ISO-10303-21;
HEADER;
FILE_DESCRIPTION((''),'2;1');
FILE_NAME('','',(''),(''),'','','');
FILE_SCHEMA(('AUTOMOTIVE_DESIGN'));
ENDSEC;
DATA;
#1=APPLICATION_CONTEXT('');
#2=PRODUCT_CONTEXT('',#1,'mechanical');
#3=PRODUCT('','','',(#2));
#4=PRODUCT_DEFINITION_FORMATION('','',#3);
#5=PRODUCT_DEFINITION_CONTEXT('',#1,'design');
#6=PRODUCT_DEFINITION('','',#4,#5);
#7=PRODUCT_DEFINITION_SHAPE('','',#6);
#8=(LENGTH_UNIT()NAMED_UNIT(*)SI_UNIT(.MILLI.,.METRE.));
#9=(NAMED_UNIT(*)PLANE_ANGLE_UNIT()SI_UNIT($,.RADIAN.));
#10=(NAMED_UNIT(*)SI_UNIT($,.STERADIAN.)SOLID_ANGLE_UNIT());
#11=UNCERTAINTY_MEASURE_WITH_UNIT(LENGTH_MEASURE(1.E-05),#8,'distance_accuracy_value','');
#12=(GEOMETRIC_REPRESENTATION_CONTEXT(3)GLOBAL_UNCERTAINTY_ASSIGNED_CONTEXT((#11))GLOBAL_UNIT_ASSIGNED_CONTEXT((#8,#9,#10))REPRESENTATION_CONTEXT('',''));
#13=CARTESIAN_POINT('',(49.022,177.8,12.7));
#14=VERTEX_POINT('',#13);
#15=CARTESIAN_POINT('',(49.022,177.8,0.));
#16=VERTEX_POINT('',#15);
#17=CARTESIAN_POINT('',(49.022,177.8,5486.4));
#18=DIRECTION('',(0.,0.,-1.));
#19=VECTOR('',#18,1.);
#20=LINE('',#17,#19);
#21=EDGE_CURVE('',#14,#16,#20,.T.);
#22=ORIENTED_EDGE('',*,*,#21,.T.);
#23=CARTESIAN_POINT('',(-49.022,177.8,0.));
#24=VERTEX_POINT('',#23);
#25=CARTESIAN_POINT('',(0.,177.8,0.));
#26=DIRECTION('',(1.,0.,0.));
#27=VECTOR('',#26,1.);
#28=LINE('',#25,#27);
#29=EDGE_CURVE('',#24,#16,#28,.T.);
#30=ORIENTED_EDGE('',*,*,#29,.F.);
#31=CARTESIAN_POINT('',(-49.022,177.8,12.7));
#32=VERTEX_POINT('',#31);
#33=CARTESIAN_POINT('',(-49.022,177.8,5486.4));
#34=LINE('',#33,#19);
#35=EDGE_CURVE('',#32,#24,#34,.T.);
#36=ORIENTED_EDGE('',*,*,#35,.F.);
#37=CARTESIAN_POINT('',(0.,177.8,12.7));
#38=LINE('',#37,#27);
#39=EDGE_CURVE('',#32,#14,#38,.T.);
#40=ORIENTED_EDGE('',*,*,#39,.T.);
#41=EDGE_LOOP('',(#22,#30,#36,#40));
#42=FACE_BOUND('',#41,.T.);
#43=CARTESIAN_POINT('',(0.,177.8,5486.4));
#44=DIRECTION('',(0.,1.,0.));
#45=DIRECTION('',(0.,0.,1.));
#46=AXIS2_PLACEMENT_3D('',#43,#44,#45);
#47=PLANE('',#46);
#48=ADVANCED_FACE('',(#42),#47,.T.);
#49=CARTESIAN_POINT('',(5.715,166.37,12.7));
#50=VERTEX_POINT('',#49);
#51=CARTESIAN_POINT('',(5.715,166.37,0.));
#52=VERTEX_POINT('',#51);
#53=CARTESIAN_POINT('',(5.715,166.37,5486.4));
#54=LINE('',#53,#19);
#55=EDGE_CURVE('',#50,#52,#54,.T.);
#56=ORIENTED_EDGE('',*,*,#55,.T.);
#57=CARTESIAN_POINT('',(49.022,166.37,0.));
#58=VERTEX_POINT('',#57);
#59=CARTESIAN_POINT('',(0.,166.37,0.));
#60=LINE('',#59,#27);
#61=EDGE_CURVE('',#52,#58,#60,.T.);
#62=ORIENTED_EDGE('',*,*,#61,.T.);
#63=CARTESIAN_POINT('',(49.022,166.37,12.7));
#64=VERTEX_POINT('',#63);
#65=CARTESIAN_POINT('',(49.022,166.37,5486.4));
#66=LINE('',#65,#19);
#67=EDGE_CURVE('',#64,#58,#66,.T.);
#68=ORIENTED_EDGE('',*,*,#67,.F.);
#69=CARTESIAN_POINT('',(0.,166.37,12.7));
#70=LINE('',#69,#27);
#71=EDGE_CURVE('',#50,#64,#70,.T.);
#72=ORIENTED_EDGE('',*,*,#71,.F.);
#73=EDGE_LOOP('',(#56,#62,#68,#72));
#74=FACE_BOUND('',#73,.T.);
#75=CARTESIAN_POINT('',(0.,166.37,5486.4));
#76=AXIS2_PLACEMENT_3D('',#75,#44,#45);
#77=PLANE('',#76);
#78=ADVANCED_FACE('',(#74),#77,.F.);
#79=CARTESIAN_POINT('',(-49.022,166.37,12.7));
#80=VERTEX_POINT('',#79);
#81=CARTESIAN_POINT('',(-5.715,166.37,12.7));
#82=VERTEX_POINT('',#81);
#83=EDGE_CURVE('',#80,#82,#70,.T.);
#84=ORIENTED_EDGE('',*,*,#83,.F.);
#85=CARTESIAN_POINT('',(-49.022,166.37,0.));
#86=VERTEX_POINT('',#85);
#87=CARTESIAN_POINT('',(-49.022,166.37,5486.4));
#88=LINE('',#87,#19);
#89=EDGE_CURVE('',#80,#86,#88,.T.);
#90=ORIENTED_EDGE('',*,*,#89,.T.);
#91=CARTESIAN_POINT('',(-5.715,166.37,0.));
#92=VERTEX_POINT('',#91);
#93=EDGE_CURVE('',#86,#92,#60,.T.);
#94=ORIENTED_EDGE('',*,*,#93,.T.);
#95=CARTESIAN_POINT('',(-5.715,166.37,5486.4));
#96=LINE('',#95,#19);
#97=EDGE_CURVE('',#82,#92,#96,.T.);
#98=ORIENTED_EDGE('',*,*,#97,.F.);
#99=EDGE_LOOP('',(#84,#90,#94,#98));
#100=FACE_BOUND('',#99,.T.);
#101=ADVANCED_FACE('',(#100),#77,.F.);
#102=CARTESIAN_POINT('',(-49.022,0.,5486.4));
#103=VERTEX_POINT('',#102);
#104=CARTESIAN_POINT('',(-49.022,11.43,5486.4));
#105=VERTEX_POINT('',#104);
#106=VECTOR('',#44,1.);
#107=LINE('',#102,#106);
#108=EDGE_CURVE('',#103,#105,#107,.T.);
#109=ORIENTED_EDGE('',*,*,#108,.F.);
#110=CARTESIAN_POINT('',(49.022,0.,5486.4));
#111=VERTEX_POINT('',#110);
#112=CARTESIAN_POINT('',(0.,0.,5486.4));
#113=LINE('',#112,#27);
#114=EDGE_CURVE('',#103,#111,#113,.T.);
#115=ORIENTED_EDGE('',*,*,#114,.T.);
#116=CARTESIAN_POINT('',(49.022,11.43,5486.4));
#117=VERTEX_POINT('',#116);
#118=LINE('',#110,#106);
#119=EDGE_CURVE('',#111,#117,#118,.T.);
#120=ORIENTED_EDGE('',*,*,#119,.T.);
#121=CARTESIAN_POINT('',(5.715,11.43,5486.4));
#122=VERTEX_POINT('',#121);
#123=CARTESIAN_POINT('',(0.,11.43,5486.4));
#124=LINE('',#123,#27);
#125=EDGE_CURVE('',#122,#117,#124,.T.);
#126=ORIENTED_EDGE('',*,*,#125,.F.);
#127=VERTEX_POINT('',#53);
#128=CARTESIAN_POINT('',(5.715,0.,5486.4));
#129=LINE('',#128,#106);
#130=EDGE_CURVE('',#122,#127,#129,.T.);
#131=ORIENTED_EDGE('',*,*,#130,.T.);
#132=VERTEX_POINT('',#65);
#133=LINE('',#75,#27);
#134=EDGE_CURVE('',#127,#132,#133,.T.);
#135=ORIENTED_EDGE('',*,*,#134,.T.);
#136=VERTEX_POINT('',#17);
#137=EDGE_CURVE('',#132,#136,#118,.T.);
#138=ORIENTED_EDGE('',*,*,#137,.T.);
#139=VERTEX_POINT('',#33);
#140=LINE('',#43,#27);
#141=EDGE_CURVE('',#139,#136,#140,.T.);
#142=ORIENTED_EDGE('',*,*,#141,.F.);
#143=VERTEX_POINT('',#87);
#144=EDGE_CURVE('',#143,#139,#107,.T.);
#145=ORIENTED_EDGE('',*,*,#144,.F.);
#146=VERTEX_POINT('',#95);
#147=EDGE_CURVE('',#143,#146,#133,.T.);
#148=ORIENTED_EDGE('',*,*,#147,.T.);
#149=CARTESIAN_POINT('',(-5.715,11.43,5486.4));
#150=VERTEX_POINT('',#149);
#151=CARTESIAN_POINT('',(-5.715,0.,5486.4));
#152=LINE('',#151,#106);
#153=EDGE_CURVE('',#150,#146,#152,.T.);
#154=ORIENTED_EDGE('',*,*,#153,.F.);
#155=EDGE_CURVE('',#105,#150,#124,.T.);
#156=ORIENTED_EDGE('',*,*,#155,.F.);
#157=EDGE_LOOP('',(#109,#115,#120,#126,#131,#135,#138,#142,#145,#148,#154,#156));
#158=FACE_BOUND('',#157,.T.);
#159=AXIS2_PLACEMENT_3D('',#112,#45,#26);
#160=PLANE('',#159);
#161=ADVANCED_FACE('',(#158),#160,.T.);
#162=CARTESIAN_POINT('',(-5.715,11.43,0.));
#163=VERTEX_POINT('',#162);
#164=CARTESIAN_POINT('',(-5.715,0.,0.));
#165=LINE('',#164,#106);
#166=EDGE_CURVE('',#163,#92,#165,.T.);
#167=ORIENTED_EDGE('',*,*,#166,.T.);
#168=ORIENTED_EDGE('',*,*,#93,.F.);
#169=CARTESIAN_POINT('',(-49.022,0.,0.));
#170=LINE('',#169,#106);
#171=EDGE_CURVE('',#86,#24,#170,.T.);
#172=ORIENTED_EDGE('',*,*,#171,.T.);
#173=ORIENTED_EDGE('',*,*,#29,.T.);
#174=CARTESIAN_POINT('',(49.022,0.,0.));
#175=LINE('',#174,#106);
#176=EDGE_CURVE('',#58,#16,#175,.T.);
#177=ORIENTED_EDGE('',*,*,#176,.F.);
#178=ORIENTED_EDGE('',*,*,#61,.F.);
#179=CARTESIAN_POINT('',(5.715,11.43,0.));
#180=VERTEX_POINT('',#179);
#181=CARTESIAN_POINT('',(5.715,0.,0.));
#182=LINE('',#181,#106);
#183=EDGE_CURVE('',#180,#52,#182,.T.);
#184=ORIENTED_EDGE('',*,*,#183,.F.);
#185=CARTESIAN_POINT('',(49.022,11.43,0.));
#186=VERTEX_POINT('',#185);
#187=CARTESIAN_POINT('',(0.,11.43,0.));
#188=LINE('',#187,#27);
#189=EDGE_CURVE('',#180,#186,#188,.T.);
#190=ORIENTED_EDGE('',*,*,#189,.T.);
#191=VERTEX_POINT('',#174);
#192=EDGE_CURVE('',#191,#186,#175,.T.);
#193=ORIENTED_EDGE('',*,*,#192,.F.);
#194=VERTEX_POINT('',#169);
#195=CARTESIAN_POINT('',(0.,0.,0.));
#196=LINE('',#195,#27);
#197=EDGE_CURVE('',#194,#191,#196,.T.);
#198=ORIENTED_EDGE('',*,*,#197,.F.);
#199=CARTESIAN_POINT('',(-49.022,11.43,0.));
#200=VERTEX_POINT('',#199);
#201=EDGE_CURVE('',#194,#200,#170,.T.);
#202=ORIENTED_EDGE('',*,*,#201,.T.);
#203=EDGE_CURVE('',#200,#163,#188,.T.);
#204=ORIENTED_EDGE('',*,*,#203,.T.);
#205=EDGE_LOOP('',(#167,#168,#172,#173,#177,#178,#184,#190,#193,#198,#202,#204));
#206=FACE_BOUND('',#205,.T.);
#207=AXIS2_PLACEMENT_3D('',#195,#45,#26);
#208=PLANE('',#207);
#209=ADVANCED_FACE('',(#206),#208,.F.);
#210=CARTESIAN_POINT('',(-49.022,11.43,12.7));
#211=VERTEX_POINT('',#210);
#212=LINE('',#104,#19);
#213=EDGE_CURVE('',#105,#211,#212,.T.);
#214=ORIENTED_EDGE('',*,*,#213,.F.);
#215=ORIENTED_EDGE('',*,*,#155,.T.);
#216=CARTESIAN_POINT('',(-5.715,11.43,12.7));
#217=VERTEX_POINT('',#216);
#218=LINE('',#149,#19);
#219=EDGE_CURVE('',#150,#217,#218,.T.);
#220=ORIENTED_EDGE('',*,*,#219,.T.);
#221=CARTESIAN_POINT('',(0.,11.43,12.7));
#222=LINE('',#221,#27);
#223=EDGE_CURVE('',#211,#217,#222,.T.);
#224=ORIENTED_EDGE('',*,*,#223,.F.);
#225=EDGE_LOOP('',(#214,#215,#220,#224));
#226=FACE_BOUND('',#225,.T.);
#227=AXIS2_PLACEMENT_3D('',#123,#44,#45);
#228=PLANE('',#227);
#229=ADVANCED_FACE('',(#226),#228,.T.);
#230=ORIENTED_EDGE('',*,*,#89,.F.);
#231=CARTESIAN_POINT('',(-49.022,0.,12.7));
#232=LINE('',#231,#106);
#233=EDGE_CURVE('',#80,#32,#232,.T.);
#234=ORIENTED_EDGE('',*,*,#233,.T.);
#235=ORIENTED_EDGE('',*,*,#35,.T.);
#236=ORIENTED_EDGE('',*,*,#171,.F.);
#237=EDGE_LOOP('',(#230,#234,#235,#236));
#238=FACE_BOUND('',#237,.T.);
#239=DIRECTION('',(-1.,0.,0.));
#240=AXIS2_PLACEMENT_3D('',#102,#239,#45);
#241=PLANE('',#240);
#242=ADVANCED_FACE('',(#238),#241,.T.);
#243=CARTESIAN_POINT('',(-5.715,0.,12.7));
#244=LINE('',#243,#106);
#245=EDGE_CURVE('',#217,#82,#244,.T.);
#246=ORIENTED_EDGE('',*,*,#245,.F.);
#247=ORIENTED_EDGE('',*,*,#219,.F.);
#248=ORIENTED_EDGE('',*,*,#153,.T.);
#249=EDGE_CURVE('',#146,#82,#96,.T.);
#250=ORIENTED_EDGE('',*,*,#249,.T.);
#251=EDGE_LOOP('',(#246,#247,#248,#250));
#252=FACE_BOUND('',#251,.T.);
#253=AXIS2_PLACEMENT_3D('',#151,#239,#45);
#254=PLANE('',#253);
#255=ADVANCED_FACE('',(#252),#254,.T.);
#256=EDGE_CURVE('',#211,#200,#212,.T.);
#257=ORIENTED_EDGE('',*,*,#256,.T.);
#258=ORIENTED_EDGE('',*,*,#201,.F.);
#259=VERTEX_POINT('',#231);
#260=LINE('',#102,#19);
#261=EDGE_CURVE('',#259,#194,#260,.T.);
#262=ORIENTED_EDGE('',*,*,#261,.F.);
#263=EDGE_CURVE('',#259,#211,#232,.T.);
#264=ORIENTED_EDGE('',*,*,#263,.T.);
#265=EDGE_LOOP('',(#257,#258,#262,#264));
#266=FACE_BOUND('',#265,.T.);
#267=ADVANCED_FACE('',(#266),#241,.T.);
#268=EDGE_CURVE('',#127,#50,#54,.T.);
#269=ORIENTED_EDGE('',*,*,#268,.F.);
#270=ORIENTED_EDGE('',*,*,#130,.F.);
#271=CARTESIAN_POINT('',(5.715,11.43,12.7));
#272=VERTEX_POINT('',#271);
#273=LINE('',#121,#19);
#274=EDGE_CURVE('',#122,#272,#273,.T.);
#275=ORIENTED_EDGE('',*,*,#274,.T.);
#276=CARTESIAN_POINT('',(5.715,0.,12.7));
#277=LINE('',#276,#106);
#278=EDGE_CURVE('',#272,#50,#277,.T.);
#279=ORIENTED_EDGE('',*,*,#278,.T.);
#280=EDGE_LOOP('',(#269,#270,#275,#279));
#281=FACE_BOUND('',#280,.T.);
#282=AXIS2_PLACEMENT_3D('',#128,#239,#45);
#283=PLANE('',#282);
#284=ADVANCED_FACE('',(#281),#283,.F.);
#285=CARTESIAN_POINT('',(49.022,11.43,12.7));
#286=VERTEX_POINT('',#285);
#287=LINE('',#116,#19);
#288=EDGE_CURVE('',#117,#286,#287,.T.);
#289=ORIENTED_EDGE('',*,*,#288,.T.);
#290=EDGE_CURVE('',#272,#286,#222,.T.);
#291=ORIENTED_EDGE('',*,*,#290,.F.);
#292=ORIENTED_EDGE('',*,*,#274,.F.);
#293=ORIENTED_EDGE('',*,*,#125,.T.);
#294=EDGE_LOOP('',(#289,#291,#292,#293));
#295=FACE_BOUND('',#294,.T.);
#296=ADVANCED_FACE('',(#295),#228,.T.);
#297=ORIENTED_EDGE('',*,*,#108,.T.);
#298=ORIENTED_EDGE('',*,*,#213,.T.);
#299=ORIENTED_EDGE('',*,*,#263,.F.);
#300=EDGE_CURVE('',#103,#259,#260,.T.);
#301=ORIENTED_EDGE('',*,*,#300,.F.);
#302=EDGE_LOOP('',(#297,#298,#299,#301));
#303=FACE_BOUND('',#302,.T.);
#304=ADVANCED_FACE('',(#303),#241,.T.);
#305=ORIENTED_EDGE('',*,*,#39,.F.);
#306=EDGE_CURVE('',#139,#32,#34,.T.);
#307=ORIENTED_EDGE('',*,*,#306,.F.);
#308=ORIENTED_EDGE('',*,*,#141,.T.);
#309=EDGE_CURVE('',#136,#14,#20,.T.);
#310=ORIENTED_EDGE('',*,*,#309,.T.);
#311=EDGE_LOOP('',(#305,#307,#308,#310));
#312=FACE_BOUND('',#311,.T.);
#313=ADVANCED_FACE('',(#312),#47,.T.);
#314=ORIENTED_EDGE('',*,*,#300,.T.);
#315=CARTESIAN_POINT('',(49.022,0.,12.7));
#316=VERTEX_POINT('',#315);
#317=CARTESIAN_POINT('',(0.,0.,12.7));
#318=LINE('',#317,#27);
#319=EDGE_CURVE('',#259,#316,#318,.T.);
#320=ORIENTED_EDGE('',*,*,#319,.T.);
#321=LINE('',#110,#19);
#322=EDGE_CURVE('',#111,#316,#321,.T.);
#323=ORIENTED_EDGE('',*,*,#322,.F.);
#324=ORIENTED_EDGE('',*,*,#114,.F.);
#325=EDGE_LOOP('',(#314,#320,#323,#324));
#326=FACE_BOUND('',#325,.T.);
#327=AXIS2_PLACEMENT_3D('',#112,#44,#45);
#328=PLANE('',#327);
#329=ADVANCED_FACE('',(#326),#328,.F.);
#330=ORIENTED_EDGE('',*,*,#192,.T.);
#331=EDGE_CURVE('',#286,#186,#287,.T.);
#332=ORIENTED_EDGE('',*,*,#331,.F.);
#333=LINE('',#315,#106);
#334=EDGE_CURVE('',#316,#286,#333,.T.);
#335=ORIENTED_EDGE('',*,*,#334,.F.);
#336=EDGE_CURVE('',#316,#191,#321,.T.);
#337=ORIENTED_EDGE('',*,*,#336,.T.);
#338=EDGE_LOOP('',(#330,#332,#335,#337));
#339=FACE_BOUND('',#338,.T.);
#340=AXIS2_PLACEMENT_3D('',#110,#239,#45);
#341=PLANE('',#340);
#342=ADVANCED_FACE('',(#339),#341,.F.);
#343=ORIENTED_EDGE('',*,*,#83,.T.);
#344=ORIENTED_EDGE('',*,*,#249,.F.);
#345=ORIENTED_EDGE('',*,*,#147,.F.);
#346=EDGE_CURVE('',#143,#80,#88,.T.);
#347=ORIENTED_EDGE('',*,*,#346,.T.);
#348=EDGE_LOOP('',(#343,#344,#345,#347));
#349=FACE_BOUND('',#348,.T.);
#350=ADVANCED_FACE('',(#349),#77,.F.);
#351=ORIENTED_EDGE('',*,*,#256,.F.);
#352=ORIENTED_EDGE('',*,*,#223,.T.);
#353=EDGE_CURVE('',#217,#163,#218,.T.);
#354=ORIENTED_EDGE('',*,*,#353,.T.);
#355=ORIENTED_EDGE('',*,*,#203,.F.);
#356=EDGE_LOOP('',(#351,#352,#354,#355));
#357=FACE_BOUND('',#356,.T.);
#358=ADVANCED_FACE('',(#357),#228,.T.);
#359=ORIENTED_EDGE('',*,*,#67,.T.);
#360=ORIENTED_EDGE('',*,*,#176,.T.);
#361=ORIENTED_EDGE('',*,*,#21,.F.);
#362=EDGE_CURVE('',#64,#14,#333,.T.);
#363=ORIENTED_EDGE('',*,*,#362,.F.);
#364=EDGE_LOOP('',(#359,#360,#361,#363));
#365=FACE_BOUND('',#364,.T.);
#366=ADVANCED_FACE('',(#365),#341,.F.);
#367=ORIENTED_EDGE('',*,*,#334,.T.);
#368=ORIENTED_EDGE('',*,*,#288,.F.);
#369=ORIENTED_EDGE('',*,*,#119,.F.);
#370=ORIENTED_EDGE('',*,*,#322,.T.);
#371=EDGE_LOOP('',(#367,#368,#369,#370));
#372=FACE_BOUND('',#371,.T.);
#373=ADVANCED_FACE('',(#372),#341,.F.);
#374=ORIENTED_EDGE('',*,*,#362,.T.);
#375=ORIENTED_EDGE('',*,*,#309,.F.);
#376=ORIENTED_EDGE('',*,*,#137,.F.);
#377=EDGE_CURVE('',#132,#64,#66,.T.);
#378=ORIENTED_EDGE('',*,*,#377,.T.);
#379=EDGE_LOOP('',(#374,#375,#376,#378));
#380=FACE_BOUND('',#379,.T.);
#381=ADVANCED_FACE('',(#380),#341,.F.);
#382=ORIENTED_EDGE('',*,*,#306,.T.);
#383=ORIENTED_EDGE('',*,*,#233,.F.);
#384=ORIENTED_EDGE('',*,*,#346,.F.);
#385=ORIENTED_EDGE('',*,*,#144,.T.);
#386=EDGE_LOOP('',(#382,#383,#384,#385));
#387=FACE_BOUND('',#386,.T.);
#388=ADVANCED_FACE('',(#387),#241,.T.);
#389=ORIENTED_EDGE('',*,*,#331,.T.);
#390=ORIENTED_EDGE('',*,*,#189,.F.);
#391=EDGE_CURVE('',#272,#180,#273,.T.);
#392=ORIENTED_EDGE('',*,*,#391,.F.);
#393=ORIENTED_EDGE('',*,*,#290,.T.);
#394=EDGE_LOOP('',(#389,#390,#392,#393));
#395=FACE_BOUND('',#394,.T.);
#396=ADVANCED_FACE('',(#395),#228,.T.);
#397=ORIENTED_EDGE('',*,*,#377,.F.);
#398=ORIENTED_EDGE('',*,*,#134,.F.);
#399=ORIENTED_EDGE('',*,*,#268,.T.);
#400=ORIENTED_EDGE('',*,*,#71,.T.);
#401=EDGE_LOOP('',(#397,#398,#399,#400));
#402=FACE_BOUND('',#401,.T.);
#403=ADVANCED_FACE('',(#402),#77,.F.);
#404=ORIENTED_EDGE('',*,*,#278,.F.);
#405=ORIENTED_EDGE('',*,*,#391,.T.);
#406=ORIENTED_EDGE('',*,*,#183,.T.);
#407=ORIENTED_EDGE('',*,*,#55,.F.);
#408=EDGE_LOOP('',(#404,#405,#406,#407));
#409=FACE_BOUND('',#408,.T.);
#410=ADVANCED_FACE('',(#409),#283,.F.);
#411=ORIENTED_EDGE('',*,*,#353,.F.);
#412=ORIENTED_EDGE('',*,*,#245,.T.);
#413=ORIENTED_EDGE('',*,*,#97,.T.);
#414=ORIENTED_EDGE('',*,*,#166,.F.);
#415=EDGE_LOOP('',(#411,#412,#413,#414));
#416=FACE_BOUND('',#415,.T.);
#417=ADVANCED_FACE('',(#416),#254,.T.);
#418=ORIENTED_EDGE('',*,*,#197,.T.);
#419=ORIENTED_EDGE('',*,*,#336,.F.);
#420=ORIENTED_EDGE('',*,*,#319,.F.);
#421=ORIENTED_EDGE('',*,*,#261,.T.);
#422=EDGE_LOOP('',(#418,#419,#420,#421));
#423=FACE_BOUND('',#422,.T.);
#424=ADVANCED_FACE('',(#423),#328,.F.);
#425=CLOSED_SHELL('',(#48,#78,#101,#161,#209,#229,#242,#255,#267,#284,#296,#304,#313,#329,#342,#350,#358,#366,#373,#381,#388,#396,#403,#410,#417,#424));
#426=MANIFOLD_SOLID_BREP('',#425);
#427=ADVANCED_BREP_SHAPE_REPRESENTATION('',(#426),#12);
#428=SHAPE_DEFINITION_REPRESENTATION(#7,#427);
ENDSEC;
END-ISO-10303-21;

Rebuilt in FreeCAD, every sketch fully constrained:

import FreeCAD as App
import Part
import Sketcher

V = App.Vector
Q = App.Units.Quantity


def add_polygon(sketch, points):
    """Adds a closed chain of lines whose ends are joined by coincident constraints."""
    first, n = sketch.GeometryCount, len(points)
    for a, b in zip(points, points[1:] + points[:1]):
        sketch.addGeometry(Part.LineSegment(App.Vector(*a, 0), App.Vector(*b, 0)), False)
    for i in range(n):
        sketch.addConstraint(Sketcher.Constraint("Coincident", first + i, 2, first + (i + 1) % n, 1))

doc = App.newDocument("Part")
body = doc.addObject("PartDesign::Body", "Body")

# Sketch on XY plane
sketch1 = body.newObject("Sketcher::SketchObject", "Sketch")
sketch1.AttachmentSupport = (doc.getObject("XY_Plane"), [""])
sketch1.MapMode = "FlatFace"
add_polygon(sketch1, [(-49, 178), (-49, 166), (-6, 166), (-6, 11), (-49, 11), (-49, 0), (49, 0), (49, 11), (6, 11), (6, 166), (49, 166), (49, 178)])  # lines 0-11
sketch1.addConstraint([
    Sketcher.Constraint("Vertical", 0),
    Sketcher.Constraint("Horizontal", 1),
    Sketcher.Constraint("Vertical", 2),
    Sketcher.Constraint("Horizontal", 3),
    Sketcher.Constraint("Vertical", 4),
    Sketcher.Constraint("Horizontal", 5),
    Sketcher.Constraint("Vertical", 6),
    Sketcher.Constraint("Horizontal", 7),
    Sketcher.Constraint("Vertical", 8),
    Sketcher.Constraint("Horizontal", 9),
    Sketcher.Constraint("Vertical", 10),
    Sketcher.Constraint("Horizontal", 11),
    Sketcher.Constraint("Symmetric", 4, 2, 5, 2, -1, 1),
    Sketcher.Constraint("Symmetric", 2, 2, 7, 2, -2),
    Sketcher.Constraint("Symmetric", 0, 2, 9, 2, -2),
    Sketcher.Constraint("Vertical", 0, 2, 3, 2),
    Sketcher.Constraint("Equal", 0, 4),
    Sketcher.Constraint("DistanceY", 2, 2, 2, 1, Q("6.1 in")),
    Sketcher.Constraint("DistanceY", -1, 1, 10, 2, Q("7 in")),
    Sketcher.Constraint("DistanceX", 5, 1, 5, 2, Q("3.86 in")),
    Sketcher.Constraint("DistanceX", 1, 1, 1, 2, Q("1.705 in")),
])
pad1 = body.newObject("PartDesign::Pad", "Pad")
pad1.Profile = sketch1
pad1.Length = Q("216 in")

doc.recompute()
